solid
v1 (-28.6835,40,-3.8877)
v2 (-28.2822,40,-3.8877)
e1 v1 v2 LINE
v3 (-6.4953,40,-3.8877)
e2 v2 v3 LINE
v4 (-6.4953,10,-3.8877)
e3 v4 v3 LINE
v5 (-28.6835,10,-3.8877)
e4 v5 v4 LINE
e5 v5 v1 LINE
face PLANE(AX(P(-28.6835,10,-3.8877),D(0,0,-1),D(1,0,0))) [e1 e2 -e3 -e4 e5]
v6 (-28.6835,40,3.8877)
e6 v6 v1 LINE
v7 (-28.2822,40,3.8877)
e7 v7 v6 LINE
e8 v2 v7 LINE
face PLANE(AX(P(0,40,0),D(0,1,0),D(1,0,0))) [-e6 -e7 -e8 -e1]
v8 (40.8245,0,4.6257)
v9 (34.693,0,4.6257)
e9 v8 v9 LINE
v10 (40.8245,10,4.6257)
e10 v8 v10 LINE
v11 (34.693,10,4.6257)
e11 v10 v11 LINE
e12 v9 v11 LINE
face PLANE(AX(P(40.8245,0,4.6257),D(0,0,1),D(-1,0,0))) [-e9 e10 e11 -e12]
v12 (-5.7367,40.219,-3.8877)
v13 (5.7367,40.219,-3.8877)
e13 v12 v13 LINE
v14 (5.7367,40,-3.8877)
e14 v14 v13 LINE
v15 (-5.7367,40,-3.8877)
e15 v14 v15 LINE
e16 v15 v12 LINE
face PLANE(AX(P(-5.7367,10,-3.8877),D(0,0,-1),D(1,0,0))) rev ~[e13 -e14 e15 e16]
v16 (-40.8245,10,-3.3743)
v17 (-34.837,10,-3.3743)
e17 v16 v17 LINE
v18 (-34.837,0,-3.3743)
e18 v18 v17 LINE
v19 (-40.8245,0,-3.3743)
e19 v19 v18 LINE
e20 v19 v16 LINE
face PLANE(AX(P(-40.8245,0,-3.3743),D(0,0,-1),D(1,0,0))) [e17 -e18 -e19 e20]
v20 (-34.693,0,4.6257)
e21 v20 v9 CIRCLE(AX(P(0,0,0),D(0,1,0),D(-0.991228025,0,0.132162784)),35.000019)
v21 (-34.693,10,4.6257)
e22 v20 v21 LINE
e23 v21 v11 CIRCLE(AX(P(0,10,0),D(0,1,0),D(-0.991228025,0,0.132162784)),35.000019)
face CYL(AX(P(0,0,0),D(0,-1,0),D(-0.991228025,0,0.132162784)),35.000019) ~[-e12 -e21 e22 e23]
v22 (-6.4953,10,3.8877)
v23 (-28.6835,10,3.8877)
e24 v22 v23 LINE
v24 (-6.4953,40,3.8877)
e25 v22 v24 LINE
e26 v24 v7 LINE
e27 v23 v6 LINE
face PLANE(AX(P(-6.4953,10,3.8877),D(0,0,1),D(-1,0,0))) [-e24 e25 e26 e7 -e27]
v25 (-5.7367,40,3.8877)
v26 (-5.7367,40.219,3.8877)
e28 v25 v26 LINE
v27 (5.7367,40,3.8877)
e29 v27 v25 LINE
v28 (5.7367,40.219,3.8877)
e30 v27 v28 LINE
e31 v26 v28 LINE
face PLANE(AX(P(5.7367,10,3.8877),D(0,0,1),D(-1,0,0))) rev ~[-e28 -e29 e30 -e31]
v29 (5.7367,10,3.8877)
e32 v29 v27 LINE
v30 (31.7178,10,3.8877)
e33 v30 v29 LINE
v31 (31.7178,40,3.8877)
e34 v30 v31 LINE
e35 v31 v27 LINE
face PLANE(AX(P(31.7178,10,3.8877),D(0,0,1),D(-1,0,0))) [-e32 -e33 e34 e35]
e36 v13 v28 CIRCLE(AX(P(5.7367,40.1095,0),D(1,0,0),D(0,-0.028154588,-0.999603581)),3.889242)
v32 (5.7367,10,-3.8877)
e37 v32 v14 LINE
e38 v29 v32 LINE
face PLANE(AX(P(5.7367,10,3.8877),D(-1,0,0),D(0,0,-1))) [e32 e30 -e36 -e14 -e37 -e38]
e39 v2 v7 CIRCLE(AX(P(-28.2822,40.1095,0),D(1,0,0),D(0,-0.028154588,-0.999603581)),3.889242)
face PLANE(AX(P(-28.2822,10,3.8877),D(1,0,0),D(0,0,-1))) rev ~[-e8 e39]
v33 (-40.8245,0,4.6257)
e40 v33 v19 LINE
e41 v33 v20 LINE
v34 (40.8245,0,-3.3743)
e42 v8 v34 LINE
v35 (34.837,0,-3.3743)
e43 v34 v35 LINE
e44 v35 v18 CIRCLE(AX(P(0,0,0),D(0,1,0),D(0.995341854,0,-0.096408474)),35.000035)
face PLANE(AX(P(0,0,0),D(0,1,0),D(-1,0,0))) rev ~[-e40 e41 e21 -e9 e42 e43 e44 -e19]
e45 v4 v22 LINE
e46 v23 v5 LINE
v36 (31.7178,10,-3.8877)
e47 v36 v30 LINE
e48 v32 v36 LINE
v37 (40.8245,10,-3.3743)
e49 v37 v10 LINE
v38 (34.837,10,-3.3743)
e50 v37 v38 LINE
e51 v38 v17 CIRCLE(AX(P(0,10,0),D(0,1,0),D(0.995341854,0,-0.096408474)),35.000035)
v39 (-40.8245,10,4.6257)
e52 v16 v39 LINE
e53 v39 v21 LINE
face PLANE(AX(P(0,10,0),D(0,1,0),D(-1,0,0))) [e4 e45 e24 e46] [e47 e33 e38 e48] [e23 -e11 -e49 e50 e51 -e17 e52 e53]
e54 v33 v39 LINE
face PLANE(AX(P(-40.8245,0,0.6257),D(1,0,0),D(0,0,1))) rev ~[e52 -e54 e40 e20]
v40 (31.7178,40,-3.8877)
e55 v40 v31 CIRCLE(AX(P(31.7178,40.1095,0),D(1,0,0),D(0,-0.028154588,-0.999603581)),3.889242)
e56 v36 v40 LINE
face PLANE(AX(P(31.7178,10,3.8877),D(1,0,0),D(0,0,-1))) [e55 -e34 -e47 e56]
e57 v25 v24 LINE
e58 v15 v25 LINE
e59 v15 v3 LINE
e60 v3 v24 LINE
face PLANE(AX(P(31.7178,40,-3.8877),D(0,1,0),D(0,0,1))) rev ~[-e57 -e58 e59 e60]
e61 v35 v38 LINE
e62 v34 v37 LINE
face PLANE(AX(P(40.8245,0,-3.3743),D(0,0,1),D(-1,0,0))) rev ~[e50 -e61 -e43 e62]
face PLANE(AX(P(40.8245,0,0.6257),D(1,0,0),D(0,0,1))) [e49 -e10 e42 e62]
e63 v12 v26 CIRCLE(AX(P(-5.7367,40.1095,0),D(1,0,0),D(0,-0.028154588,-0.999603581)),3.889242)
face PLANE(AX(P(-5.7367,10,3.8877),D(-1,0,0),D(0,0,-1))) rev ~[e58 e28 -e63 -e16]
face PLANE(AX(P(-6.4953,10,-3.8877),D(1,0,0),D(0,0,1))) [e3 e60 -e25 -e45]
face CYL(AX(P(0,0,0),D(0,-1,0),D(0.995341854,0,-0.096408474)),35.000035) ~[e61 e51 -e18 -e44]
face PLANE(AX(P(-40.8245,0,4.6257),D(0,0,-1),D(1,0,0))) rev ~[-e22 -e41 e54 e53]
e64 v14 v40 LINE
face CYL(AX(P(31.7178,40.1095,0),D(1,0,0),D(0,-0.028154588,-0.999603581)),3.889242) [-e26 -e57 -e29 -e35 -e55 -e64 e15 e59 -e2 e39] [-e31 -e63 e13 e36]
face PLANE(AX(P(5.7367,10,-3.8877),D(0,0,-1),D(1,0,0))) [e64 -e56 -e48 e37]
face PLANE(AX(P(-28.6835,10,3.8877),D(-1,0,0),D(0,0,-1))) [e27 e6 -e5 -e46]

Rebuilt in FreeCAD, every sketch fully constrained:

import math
import FreeCAD as App
import Part
import Sketcher

V = App.Vector


def add_polygon(sketch, points):
    """Adds a closed chain of lines whose ends are joined by coincident constraints."""
    first, n = sketch.GeometryCount, len(points)
    for a, b in zip(points, points[1:] + points[:1]):
        sketch.addGeometry(Part.LineSegment(App.Vector(*a, 0), App.Vector(*b, 0)), False)
    for i in range(n):
        sketch.addConstraint(Sketcher.Constraint("Coincident", first + i, 2, first + (i + 1) % n, 1))

doc = App.newDocument("Part")
body = doc.addObject("PartDesign::Body", "Body")

sketch1 = body.newObject("Sketcher::SketchObject", "Sketch")
sketch1.AttachmentSupport = (doc.getObject("XZ_Plane"), [""])
sketch1.MapMode = "FlatFace"
sketch1.addGeometry(Part.LineSegment(V(40.8245, 4.6257, 0), V(40.8245, -3.3743, 0)), False)
sketch1.addGeometry(Part.LineSegment(V(40.8245, -3.3743, 0), V(34.837, -3.3743, 0)), False)
sketch1.addGeometry(Part.ArcOfCircle(Part.Circle(V(0, 0, 0), V(0, 0, 1), 35.000035), math.radians(-174.467608), math.radians(-5.532392)), False)
sketch1.addGeometry(Part.LineSegment(V(-34.837, -3.3743, 0), V(-40.8245, -3.3743, 0)), False)
sketch1.addGeometry(Part.LineSegment(V(-40.8245, -3.3743, 0), V(-40.8245, 4.6257, 0)), False)
sketch1.addGeometry(Part.LineSegment(V(-40.8245, 4.6257, 0), V(-34.693, 4.6257, 0)), False)
sketch1.addGeometry(Part.ArcOfCircle(Part.Circle(V(0, 0, 0), V(0, 0, 1), 35.000019), math.radians(7.594589), math.radians(172.405411)), False)
sketch1.addGeometry(Part.LineSegment(V(34.693, 4.6257, 0), V(40.8245, 4.6257, 0)), False)
sketch1.addConstraint(Sketcher.Constraint("Coincident", 0, 2, 1, 1))
sketch1.addConstraint(Sketcher.Constraint("Coincident", 1, 2, 2, 2))
sketch1.addConstraint(Sketcher.Constraint("Coincident", 2, 1, 3, 1))
sketch1.addConstraint(Sketcher.Constraint("Coincident", 3, 2, 4, 1))
sketch1.addConstraint(Sketcher.Constraint("Coincident", 4, 2, 5, 1))
sketch1.addConstraint(Sketcher.Constraint("Coincident", 5, 2, 6, 2))
sketch1.addConstraint(Sketcher.Constraint("Coincident", 6, 1, 7, 1))
sketch1.addConstraint(Sketcher.Constraint("Coincident", 7, 2, 0, 1))
sketch1.addConstraint(Sketcher.Constraint("Vertical", 0))
sketch1.addConstraint(Sketcher.Constraint("Horizontal", 1))
sketch1.addConstraint(Sketcher.Constraint("Horizontal", 3))
sketch1.addConstraint(Sketcher.Constraint("Vertical", 4))
sketch1.addConstraint(Sketcher.Constraint("Horizontal", 5))
sketch1.addConstraint(Sketcher.Constraint("Horizontal", 7))
sketch1.addConstraint(Sketcher.Constraint("Coincident", 2, 3, -1, 1))
sketch1.addConstraint(Sketcher.Constraint("Coincident", 6, 3, -1, 1))
sketch1.addConstraint(Sketcher.Constraint("Equal", 2, 6))
sketch1.addConstraint(Sketcher.Constraint("Symmetric", 0, 2, 3, 2, -2))
sketch1.addConstraint(Sketcher.Constraint("Horizontal", 5, 2, 6, 1))
sketch1.addConstraint(Sketcher.Constraint("Radius", 2, 35.0))
sketch1.addConstraint(Sketcher.Constraint("DistanceY", 0, 2, 0, 1, 8.0))
sketch1.addConstraint(Sketcher.Constraint("DistanceX", 1, 2, 1, 1, 5.9875))
sketch1.addConstraint(Sketcher.Constraint("DistanceX", 5, 1, 5, 2, 6.1315))
pad1 = body.newObject("PartDesign::Pad", "Pad")
pad1.Profile = sketch1
pad1.Length = 10
pad1.Reversed = True

sketch2 = body.newObject("Sketcher::SketchObject", "Sketch001")
sketch2.AttachmentSupport = (doc.getObject("XZ_Plane"), [""])
sketch2.MapMode = "FlatFace"
sketch2.AttachmentOffset = App.Placement(V(0, 0, -10), App.Rotation())
add_polygon(sketch2, [(-6.4953, -3.8877), (-28.6835, -3.8877), (-28.6835, 3.8877), (-6.4953, 3.8877)])
add_polygon(sketch2, [(31.7178, -3.8877), (5.7367, -3.8877), (5.7367, 3.8877), (31.7178, 3.8877)])
sketch2.addConstraint(Sketcher.Constraint("Horizontal", 0))
sketch2.addConstraint(Sketcher.Constraint("Vertical", 1))
sketch2.addConstraint(Sketcher.Constraint("Horizontal", 2))
sketch2.addConstraint(Sketcher.Constraint("Vertical", 3))
sketch2.addConstraint(Sketcher.Constraint("Horizontal", 4))
sketch2.addConstraint(Sketcher.Constraint("Vertical", 5))
sketch2.addConstraint(Sketcher.Constraint("Horizontal", 6))
sketch2.addConstraint(Sketcher.Constraint("Vertical", 7))
sketch2.addConstraint(Sketcher.Constraint("Horizontal", 3, 2, 4, 2))
sketch2.addConstraint(Sketcher.Constraint("Horizontal", 2, 2, 5, 2))
sketch2.addConstraint(Sketcher.Constraint("DistanceX", 4, 2, 4, 1, 25.981))
sketch2.addConstraint(Sketcher.Constraint("DistanceX", 0, 2, 0, 1, 22.1882))
sketch2.addConstraint(Sketcher.Constraint("DistanceY", 1, 1, 1, 2, 7.7754))
sketch2.addConstraint(Sketcher.Constraint("DistanceX", 3, 2, 4, 2, 12.232))
sketch2.addConstraint(Sketcher.Constraint("DistanceX", 0, 2, -1, 1, 28.6835))
sketch2.addConstraint(Sketcher.Constraint("DistanceY", 0, 2, -1, 1, 3.8877))
pad2 = body.newObject("PartDesign::Pad", "Pad001")
pad2.Profile = sketch2
pad2.Length = 30
pad2.Reversed = True

sketch3 = body.newObject("Sketcher::SketchObject", "Sketch002")
sketch3.AttachmentSupport = (doc.getObject("YZ_Plane"), [""])
sketch3.MapMode = "FlatFace"
sketch3.AttachmentOffset = App.Placement(V(0, 0, 31.7178), App.Rotation())
sketch3.addGeometry(Part.LineSegment(V(40, 3.8877, 0), V(40, -3.8877, 0)), False)
sketch3.addGeometry(Part.ArcOfCircle(Part.Circle(V(40.1095, 0, 0), V(0, 0, 1), 3.889242), math.radians(-91.613352), math.radians(91.613352)), False)
sketch3.addConstraint(Sketcher.Constraint("Coincident", 0, 1, 1, 2))
sketch3.addConstraint(Sketcher.Constraint("Coincident", 1, 1, 0, 2))
sketch3.addConstraint(Sketcher.Constraint("Vertical", 0))
sketch3.addConstraint(Sketcher.Constraint("PointOnObject", 1, 3, -1))
sketch3.addConstraint(Sketcher.Constraint("DistanceX", -1, 1, 0, 1, 40.0))
sketch3.addConstraint(Sketcher.Constraint("Radius", 1, 3.8892))
sketch3.addConstraint(Sketcher.Constraint("DistanceY", 0, 2, 0, 1, 7.7754))
pad3 = body.newObject("PartDesign::Pad", "Pad002")
pad3.Profile = sketch3
pad3.Length = 60
pad3.Reversed = True

sketch4 = body.newObject("Sketcher::SketchObject", "Sketch003")
sketch4.AttachmentSupport = (doc.getObject("XZ_Plane"), [""])
sketch4.MapMode = "FlatFace"
sketch4.AttachmentOffset = App.Placement(V(0, 0, -10), App.Rotation())
add_polygon(sketch4, [(-5.7367, 3.8877), (5.7367, 3.8877), (5.7367, -3.8877), (-5.7367, -3.8877)])
sketch4.addConstraint(Sketcher.Constraint("Horizontal", 0))
sketch4.addConstraint(Sketcher.Constraint("Vertical", 1))
sketch4.addConstraint(Sketcher.Constraint("Horizontal", 2))
sketch4.addConstraint(Sketcher.Constraint("Vertical", 3))
sketch4.addConstraint(Sketcher.Constraint("Symmetric", 0, 2, 2, 2, -1, 1))
sketch4.addConstraint(Sketcher.Constraint("DistanceX", 0, 1, 0, 2, 11.4734))
sketch4.addConstraint(Sketcher.Constraint("DistanceY", 1, 2, 1, 1, 7.7754))
pocket1 = body.newObject("PartDesign::Pocket", "Pocket")
pocket1.Profile = sketch4
pocket1.Length = 60

doc.recompute()
